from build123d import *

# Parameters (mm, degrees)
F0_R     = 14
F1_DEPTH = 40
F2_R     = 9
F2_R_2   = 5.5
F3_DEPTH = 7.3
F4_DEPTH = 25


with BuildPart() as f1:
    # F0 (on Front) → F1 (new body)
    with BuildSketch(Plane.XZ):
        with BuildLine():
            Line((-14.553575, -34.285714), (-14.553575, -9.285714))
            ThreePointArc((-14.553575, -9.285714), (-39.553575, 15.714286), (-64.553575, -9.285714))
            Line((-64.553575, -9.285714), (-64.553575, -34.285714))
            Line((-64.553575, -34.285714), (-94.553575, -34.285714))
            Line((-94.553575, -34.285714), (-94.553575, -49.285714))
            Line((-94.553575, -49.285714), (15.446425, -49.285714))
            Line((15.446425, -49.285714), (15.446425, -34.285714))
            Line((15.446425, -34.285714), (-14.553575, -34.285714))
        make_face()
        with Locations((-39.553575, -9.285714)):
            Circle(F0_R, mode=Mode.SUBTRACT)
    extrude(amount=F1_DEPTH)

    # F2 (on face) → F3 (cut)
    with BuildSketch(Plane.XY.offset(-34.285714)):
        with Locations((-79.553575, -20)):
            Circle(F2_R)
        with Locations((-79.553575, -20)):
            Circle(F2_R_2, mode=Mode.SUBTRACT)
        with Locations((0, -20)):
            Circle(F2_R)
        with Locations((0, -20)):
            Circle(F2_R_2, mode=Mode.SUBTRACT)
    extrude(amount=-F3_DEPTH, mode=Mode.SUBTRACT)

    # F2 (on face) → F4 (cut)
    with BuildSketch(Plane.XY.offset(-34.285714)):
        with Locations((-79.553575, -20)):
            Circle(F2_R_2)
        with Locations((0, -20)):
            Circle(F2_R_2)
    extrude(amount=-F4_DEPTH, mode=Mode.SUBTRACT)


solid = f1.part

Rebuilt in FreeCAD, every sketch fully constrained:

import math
import FreeCAD as App
import Part
import Sketcher
from FreeCAD import Vector

doc = App.newDocument("Part")
body = doc.addObject("PartDesign::Body", "Body")

# Sketch on XZ plane
sketch1 = body.newObject("Sketcher::SketchObject", "Sketch")
sketch1.AttachmentSupport = (doc.getObject("XZ_Plane"), [""])
sketch1.MapMode = "FlatFace"
sketch1.addGeometry([
    Part.LineSegment(Vector(-15, -34, 0), Vector(-15, -9, 0)),  # 0
    Part.ArcOfCircle(Part.Circle(Vector(-40, -9, 0), Vector(0, 0, 1), 25), math.radians(0), math.radians(180)),  # 1
    Part.LineSegment(Vector(-65, -9, 0), Vector(-65, -34, 0)),  # 2
    Part.LineSegment(Vector(-65, -34, 0), Vector(-95, -34, 0)),  # 3
    Part.LineSegment(Vector(-95, -34, 0), Vector(-95, -49, 0)),  # 4
    Part.LineSegment(Vector(-95, -49, 0), Vector(15, -49, 0)),  # 5
    Part.LineSegment(Vector(15, -49, 0), Vector(15, -34, 0)),  # 6
    Part.LineSegment(Vector(15, -34, 0), Vector(-15, -34, 0)),  # 7
    Part.Circle(Vector(-40, -9, 0), Vector(0, 0, 1), 14),  # 8
], False)
sketch1.addConstraint([
    Sketcher.Constraint("Tangent", 0, 2, 1, 1),
    Sketcher.Constraint("Tangent", 1, 2, 2, 1),
    Sketcher.Constraint("Coincident", 2, 2, 3, 1),
    Sketcher.Constraint("Coincident", 3, 2, 4, 1),
    Sketcher.Constraint("Coincident", 4, 2, 5, 1),
    Sketcher.Constraint("Coincident", 5, 2, 6, 1),
    Sketcher.Constraint("Coincident", 6, 2, 7, 1),
    Sketcher.Constraint("Coincident", 7, 2, 0, 1),
    Sketcher.Constraint("Vertical", 0),
    Sketcher.Constraint("Vertical", 2),
    Sketcher.Constraint("Horizontal", 3),
    Sketcher.Constraint("Vertical", 4),
    Sketcher.Constraint("Horizontal", 5),
    Sketcher.Constraint("Vertical", 6),
    Sketcher.Constraint("Horizontal", 7),
    Sketcher.Constraint("Coincident", 8, 3, 1, 3),
    Sketcher.Constraint("Horizontal", 3, 2, 6, 2),
    Sketcher.Constraint("Equal", 3, 7),
    Sketcher.Constraint("Diameter", 8, 28.0),
    Sketcher.Constraint("Radius", 1, 25.0),
    Sketcher.Constraint("DistanceX", 3, 2, 3, 1, 30.0),
    Sketcher.Constraint("DistanceY", 0, 1, 0, 2, 25.0),
    Sketcher.Constraint("DistanceY", 4, 2, 4, 1, 15.0),
    Sketcher.Constraint("DistanceX", 1, 3, -1, 1, 39.553575),
    Sketcher.Constraint("DistanceY", 1, 3, -1, 1, 9.285714),
])
pad1 = body.newObject("PartDesign::Pad", "Pad")
pad1.Profile = sketch1
pad1.Length = 40

# Sketch on XY plane
sketch2 = body.newObject("Sketcher::SketchObject", "Sketch001")
sketch2.AttachmentSupport = (doc.getObject("XY_Plane"), [""])
sketch2.MapMode = "FlatFace"
sketch2.AttachmentOffset = App.Placement(Vector(0, 0, -34.285714), App.Rotation())
sketch2.addGeometry([
    Part.Circle(Vector(-80, -20, 0), Vector(0, 0, 1), 9),
    Part.Circle(Vector(-80, -20, 0), Vector(0, 0, 1), 6),
    Part.Circle(Vector(0, -20, 0), Vector(0, 0, 1), 9),
    Part.Circle(Vector(0, -20, 0), Vector(0, 0, 1), 6),
], False)
sketch2.addConstraint([
    Sketcher.Constraint("Coincident", 1, 3, 0, 3),
    Sketcher.Constraint("Coincident", 3, 3, 2, 3),
    Sketcher.Constraint("Equal", 0, 2),
    Sketcher.Constraint("Equal", 1, 3),
    Sketcher.Constraint("PointOnObject", 2, 3, -2),
    Sketcher.Constraint("Horizontal", 1, 3, 2, 3),
    Sketcher.Constraint("Diameter", 0, 18.0),
    Sketcher.Constraint("Diameter", 1, 11.0),
    Sketcher.Constraint("DistanceY", 0, 3, -1, 1, 20.0),
    Sketcher.Constraint("DistanceX", 0, 3, -1, 1, 79.553575),
])
pocket1 = body.newObject("PartDesign::Pocket", "Pocket")
pocket1.Profile = sketch2
pocket1.Length = 7.3

# Sketch on XY plane
sketch3 = body.newObject("Sketcher::SketchObject", "Sketch002")
sketch3.AttachmentSupport = (doc.getObject("XY_Plane"), [""])
sketch3.MapMode = "FlatFace"
sketch3.AttachmentOffset = App.Placement(Vector(0, 0, -34.285714), App.Rotation())
sketch3.addGeometry([
    Part.Circle(Vector(-80, -20, 0), Vector(0, 0, 1), 6),
    Part.Circle(Vector(0, -20, 0), Vector(0, 0, 1), 6),
], False)
sketch3.addConstraint([
    Sketcher.Constraint("Equal", 0, 1),
    Sketcher.Constraint("PointOnObject", 1, 3, -2),
    Sketcher.Constraint("Horizontal", 0, 3, 1, 3),
    Sketcher.Constraint("Diameter", 0, 11.0),
    Sketcher.Constraint("DistanceY", 0, 3, -1, 1, 20.0),
    Sketcher.Constraint("DistanceX", 0, 3, -1, 1, 79.553575),
])
pocket2 = body.newObject("PartDesign::Pocket", "Pocket001")
pocket2.Profile = sketch3
pocket2.Length = 25

doc.recompute()
